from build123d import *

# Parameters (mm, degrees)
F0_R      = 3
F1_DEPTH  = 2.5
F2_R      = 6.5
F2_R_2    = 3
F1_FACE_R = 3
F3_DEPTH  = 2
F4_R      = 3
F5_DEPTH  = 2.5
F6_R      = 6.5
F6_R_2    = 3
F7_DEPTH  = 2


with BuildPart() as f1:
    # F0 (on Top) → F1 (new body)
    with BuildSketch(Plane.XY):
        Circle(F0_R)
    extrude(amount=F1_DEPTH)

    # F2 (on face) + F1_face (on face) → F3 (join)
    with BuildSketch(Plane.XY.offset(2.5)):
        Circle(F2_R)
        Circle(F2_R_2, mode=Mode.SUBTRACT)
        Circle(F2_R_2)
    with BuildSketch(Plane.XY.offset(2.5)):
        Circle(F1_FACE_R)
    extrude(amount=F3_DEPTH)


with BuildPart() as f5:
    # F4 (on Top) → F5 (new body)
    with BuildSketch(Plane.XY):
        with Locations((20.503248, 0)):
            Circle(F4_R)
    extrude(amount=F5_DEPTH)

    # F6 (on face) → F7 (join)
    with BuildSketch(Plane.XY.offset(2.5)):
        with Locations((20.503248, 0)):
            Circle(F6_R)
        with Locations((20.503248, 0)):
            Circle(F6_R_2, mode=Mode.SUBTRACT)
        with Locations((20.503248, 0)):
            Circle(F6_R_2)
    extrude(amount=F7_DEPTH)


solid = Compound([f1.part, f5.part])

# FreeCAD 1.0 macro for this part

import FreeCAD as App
import Part
import Sketcher
from FreeCAD import Vector
Q = App.Units.Quantity

doc = App.newDocument("Part")
body = doc.addObject("PartDesign::Body", "Body")

sketch1 = body.newObject("Sketcher::SketchObject", "Sketch")
sketch1.AttachmentSupport = (doc.getObject("XY_Plane"), [""])
sketch1.MapMode = "FlatFace"
sketch1.addGeometry(Part.Circle(Vector(0, 0, 0), Vector(0, 0, 1), 3), False)
sketch1.addConstraint([
    Sketcher.Constraint("Coincident", 0, 3, -1, 1),
    Sketcher.Constraint("Diameter", 0, Q("6 mm")),
])
pad1 = body.newObject("PartDesign::Pad", "Pad")
pad1.Profile = sketch1
pad1.Length = 2.5

sketch2 = body.newObject("Sketcher::SketchObject", "Sketch001")
sketch2.AttachmentSupport = (doc.getObject("XY_Plane"), [""])
sketch2.MapMode = "FlatFace"
sketch2.AttachmentOffset = App.Placement(Vector(0, 0, 2.5), App.Rotation())
sketch2.addGeometry(Part.Circle(Vector(0, 0, 0), Vector(0, 0, 1), 6.5), False)
sketch2.addConstraint([
    Sketcher.Constraint("Coincident", 0, 3, -1, 1),
    Sketcher.Constraint("Diameter", 0, Q("13 mm")),
])
pad2 = body.newObject("PartDesign::Pad", "Pad001")
pad2.Profile = sketch2
pad2.Length = 2
body2 = doc.addObject("PartDesign::Body", "Body001")

sketch3 = body2.newObject("Sketcher::SketchObject", "Sketch002")
sketch3.AttachmentSupport = (doc.getObject("XY_Plane001"), [""])
sketch3.MapMode = "FlatFace"
sketch3.addGeometry(Part.Circle(Vector(20.503248, 0, 0), Vector(0, 0, 1), 3), False)
sketch3.addConstraint([
    Sketcher.Constraint("PointOnObject", 0, 3, -1),
    Sketcher.Constraint("Diameter", 0, Q("6 mm")),
    Sketcher.Constraint("DistanceX", -1, 1, 0, 3, Q("20.503248 mm")),
])
pad3 = body2.newObject("PartDesign::Pad", "Pad002")
pad3.Profile = sketch3
pad3.Length = 2.5

sketch4 = body2.newObject("Sketcher::SketchObject", "Sketch003")
sketch4.AttachmentSupport = (doc.getObject("XY_Plane001"), [""])
sketch4.MapMode = "FlatFace"
sketch4.AttachmentOffset = App.Placement(Vector(0, 0, 2.5), App.Rotation())
sketch4.addGeometry(Part.Circle(Vector(20.503248, 0, 0), Vector(0, 0, 1), 6.5), False)
sketch4.addConstraint([
    Sketcher.Constraint("PointOnObject", 0, 3, -1),
    Sketcher.Constraint("Diameter", 0, Q("13 mm")),
    Sketcher.Constraint("DistanceX", -1, 1, 0, 3, Q("20.503248 mm")),
])
pad4 = body2.newObject("PartDesign::Pad", "Pad003")
pad4.Profile = sketch4
pad4.Length = 2

doc.recompute()
